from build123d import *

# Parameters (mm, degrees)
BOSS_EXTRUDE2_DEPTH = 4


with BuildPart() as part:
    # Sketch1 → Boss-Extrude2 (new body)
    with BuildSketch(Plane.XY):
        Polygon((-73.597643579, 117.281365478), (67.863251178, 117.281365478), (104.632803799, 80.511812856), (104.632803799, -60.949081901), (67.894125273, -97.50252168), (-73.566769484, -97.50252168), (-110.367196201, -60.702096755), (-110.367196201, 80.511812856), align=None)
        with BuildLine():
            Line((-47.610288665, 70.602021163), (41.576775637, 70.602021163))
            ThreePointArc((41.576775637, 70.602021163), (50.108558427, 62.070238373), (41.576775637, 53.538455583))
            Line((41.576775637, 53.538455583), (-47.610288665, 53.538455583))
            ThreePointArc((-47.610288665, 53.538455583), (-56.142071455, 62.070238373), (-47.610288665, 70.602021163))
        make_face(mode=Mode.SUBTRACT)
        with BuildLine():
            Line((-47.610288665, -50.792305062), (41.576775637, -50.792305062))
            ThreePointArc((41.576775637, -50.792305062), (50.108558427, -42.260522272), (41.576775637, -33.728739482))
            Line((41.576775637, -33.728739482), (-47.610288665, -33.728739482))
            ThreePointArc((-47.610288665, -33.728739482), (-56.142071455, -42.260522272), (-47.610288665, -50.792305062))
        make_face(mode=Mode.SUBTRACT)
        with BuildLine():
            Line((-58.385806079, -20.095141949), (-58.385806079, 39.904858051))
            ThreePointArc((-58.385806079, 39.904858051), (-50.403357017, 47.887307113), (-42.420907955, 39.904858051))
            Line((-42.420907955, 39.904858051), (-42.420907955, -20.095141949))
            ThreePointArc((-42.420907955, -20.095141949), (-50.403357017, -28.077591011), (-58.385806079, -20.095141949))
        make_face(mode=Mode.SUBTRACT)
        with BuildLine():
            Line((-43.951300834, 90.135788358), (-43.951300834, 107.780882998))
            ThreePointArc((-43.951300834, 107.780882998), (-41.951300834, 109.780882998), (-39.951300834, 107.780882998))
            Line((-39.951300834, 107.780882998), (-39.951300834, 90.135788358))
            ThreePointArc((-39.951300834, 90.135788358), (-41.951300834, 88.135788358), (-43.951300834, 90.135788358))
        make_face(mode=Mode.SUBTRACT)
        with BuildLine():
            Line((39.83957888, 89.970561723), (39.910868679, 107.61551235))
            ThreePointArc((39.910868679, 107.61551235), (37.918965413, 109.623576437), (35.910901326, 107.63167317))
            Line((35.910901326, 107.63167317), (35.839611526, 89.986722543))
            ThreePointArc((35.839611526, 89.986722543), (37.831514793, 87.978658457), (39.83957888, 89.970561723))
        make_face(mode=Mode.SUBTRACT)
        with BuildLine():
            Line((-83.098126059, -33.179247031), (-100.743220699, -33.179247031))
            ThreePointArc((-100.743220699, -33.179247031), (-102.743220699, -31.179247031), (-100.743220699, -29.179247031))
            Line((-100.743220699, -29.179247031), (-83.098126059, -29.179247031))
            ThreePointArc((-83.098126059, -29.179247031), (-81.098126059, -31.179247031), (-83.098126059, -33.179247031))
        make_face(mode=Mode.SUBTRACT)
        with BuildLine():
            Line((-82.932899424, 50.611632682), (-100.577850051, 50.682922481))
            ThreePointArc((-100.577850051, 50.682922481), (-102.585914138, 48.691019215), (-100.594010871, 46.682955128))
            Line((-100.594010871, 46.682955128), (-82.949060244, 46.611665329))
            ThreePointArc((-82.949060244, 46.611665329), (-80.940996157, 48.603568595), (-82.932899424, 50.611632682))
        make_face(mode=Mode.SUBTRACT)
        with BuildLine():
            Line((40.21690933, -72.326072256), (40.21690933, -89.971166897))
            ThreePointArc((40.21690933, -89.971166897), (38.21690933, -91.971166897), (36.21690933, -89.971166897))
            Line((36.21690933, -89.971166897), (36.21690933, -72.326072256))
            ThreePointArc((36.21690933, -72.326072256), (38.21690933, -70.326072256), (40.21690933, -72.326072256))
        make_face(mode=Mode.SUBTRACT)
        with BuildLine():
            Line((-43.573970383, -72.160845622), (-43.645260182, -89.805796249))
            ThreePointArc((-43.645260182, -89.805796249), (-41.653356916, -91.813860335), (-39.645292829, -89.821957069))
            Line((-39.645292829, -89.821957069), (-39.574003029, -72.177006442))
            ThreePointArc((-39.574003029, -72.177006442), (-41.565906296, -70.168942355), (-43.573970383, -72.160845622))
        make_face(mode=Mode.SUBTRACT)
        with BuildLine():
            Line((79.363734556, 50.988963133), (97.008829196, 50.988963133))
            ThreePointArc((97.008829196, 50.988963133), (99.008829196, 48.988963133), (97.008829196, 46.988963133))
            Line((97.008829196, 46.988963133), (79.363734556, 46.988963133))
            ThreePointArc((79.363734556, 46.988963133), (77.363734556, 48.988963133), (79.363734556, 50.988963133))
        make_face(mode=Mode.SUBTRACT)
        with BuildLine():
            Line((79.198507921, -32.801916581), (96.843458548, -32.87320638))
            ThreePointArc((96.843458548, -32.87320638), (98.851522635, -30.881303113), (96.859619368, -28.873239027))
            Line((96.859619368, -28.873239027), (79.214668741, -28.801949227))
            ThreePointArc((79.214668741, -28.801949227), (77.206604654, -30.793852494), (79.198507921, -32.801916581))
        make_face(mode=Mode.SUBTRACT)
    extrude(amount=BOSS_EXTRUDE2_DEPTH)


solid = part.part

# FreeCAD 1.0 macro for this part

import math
import FreeCAD as App
import Part
import Sketcher
Q = App.Units.Quantity

doc = App.newDocument("Part")
body = doc.addObject("PartDesign::Body", "Body")

sketch1 = doc.addObject("Sketcher::SketchObject", "Sketch")
body.addObject(sketch1)
sketch1.AttachmentSupport = (doc.XY_Plane, [""])
sketch1.MapMode = "FlatFace"
sketch1.addGeometry([
    Part.LineSegment(App.Vector(67.863251, 117.281365, 0), App.Vector(-73.597644, 117.281365, 0)),
    Part.LineSegment(App.Vector(-73.597644, 117.281365, 0), App.Vector(-110.367196, 80.511813, 0)),
    Part.LineSegment(App.Vector(-110.367196, 80.511813, 0), App.Vector(-110.367196, -60.702097, 0)),
    Part.LineSegment(App.Vector(-110.367196, -60.702097, 0), App.Vector(-73.566769, -97.502522, 0)),
    Part.LineSegment(App.Vector(-73.566769, -97.502522, 0), App.Vector(67.894125, -97.502522, 0)),
    Part.LineSegment(App.Vector(67.894125, -97.502522, 0), App.Vector(104.632804, -60.949082, 0)),
    Part.LineSegment(App.Vector(104.632804, -60.949082, 0), App.Vector(104.632804, 80.511813, 0)),
    Part.LineSegment(App.Vector(104.632804, 80.511813, 0), App.Vector(67.863251, 117.281365, 0)),
    Part.LineSegment(App.Vector(40.216909, -72.326072, 0), App.Vector(40.216909, -89.971167, 0)),
    Part.ArcOfCircle(Part.Circle(App.Vector(38.216909, -89.971167, 0), App.Vector(0, 0, 1), 2), math.radians(180), math.radians(360)),
    Part.LineSegment(App.Vector(36.216909, -89.971167, 0), App.Vector(36.216909, -72.326072, 0)),
    Part.ArcOfCircle(Part.Circle(App.Vector(38.216909, -72.326072, 0), App.Vector(0, 0, 1), 2), math.radians(0), math.radians(180)),
    Part.ArcOfCircle(Part.Circle(App.Vector(79.206588, -30.801933, 0), App.Vector(0, 0, 1), 2), math.radians(89.768513), math.radians(269.768513)),
    Part.LineSegment(App.Vector(79.214669, -28.801949, 0), App.Vector(96.859619, -28.873239, 0)),
    Part.ArcOfCircle(Part.Circle(App.Vector(96.851539, -30.873223, 0), App.Vector(0, 0, 1), 2), math.radians(-90.231487), math.radians(89.768513)),
    Part.LineSegment(App.Vector(96.843459, -32.873206, 0), App.Vector(79.198508, -32.801917, 0)),
    Part.ArcOfCircle(Part.Circle(App.Vector(-41.573987, -72.168926, 0), App.Vector(0, 0, 1), 2), math.radians(-0.231487), math.radians(179.768513)),
    Part.LineSegment(App.Vector(-39.574003, -72.177006, 0), App.Vector(-39.645293, -89.821957, 0)),
    Part.ArcOfCircle(Part.Circle(App.Vector(-41.645277, -89.813877, 0), App.Vector(0, 0, 1), 2), math.radians(179.768513), math.radians(359.768513)),
    Part.LineSegment(App.Vector(-43.64526, -89.805796, 0), App.Vector(-43.57397, -72.160846, 0)),
    Part.ArcOfCircle(Part.Circle(App.Vector(-47.610289, -42.260522, 0), App.Vector(0, 0, 1), 8.531783), math.radians(90), math.radians(270)),
    Part.LineSegment(App.Vector(-47.610289, -33.728739, 0), App.Vector(41.576776, -33.728739, 0)),
    Part.ArcOfCircle(Part.Circle(App.Vector(41.576776, -42.260522, 0), App.Vector(0, 0, 1), 8.531783), math.radians(-90), math.radians(90)),
    Part.LineSegment(App.Vector(41.576776, -50.792305, 0), App.Vector(-47.610289, -50.792305, 0)),
    Part.LineSegment(App.Vector(-83.098126, -33.179247, 0), App.Vector(-100.743221, -33.179247, 0)),
    Part.ArcOfCircle(Part.Circle(App.Vector(-100.743221, -31.179247, 0), App.Vector(0, 0, 1), 2), math.radians(90), math.radians(270)),
    Part.LineSegment(App.Vector(-100.743221, -29.179247, 0), App.Vector(-83.098126, -29.179247, 0)),
    Part.ArcOfCircle(Part.Circle(App.Vector(-83.098126, -31.179247, 0), App.Vector(0, 0, 1), 2), math.radians(-90), math.radians(90)),
    Part.LineSegment(App.Vector(79.363735, 50.988963, 0), App.Vector(97.008829, 50.988963, 0)),
    Part.ArcOfCircle(Part.Circle(App.Vector(97.008829, 48.988963, 0), App.Vector(0, 0, 1), 2), math.radians(-90), math.radians(90)),
    Part.LineSegment(App.Vector(97.008829, 46.988963, 0), App.Vector(79.363735, 46.988963, 0)),
    Part.ArcOfCircle(Part.Circle(App.Vector(79.363735, 48.988963, 0), App.Vector(0, 0, 1), 2), math.radians(90), math.radians(270)),
    Part.ArcOfCircle(Part.Circle(App.Vector(37.839595, 89.978642, 0), App.Vector(0, 0, 1), 2), math.radians(179.768513), math.radians(359.768513)),
    Part.LineSegment(App.Vector(35.839612, 89.986723, 0), App.Vector(35.910901, 107.631673, 0)),
    Part.ArcOfCircle(Part.Circle(App.Vector(37.910885, 107.623593, 0), App.Vector(0, 0, 1), 2), math.radians(-0.231487), math.radians(179.768513)),
    Part.LineSegment(App.Vector(39.910869, 107.615512, 0), App.Vector(39.839579, 89.970562, 0)),
    Part.LineSegment(App.Vector(-58.385806, -20.095142, 0), App.Vector(-58.385806, 39.904858, 0)),
    Part.ArcOfCircle(Part.Circle(App.Vector(-50.403357, 39.904858, 0), App.Vector(0, 0, 1), 7.982449), math.radians(0), math.radians(180)),
    Part.LineSegment(App.Vector(-42.420908, 39.904858, 0), App.Vector(-42.420908, -20.095142, 0)),
    Part.ArcOfCircle(Part.Circle(App.Vector(-50.403357, -20.095142, 0), App.Vector(0, 0, 1), 7.982449), math.radians(180), math.radians(360)),
    Part.ArcOfCircle(Part.Circle(App.Vector(-82.94098, 48.611649, 0), App.Vector(0, 0, 1), 2), math.radians(-90.231487), math.radians(89.768513)),
    Part.LineSegment(App.Vector(-82.94906, 46.611665, 0), App.Vector(-100.594011, 46.682955, 0)),
    Part.ArcOfCircle(Part.Circle(App.Vector(-100.58593, 48.682939, 0), App.Vector(0, 0, 1), 2), math.radians(89.768513), math.radians(269.768513)),
    Part.LineSegment(App.Vector(-100.57785, 50.682922, 0), App.Vector(-82.932899, 50.611633, 0)),
    Part.LineSegment(App.Vector(-47.610289, 70.602021, 0), App.Vector(41.576776, 70.602021, 0)),
    Part.ArcOfCircle(Part.Circle(App.Vector(41.576776, 62.070238, 0), App.Vector(0, 0, 1), 8.531783), math.radians(-90), math.radians(90)),
    Part.LineSegment(App.Vector(41.576776, 53.538456, 0), App.Vector(-47.610289, 53.538456, 0)),
    Part.ArcOfCircle(Part.Circle(App.Vector(-47.610289, 62.070238, 0), App.Vector(0, 0, 1), 8.531783), math.radians(90), math.radians(270)),
    Part.LineSegment(App.Vector(-43.951301, 90.135788, 0), App.Vector(-43.951301, 107.780883, 0)),
    Part.ArcOfCircle(Part.Circle(App.Vector(-41.951301, 107.780883, 0), App.Vector(0, 0, 1), 2), math.radians(0), math.radians(180)),
    Part.LineSegment(App.Vector(-39.951301, 107.780883, 0), App.Vector(-39.951301, 90.135788, 0)),
    Part.ArcOfCircle(Part.Circle(App.Vector(-41.951301, 90.135788, 0), App.Vector(0, 0, 1), 2), math.radians(180), math.radians(360)),
], False)
sketch1.addConstraint([
    Sketcher.Constraint("Coincident", 0, 2, 1, 1),
    Sketcher.Constraint("Coincident", 1, 2, 2, 1),
    Sketcher.Constraint("Coincident", 2, 2, 3, 1),
    Sketcher.Constraint("Coincident", 3, 2, 4, 1),
    Sketcher.Constraint("Coincident", 4, 2, 5, 1),
    Sketcher.Constraint("Coincident", 5, 2, 6, 1),
    Sketcher.Constraint("Coincident", 6, 2, 7, 1),
    Sketcher.Constraint("Coincident", 7, 2, 0, 1),
    Sketcher.Constraint("Tangent", 8, 2, 9, 2),
    Sketcher.Constraint("Tangent", 9, 1, 10, 1),
    Sketcher.Constraint("Tangent", 10, 2, 11, 2),
    Sketcher.Constraint("Tangent", 11, 1, 8, 1),
    Sketcher.Constraint("Tangent", 12, 1, 13, 1),
    Sketcher.Constraint("Tangent", 13, 2, 14, 2),
    Sketcher.Constraint("Tangent", 14, 1, 15, 1),
    Sketcher.Constraint("Tangent", 15, 2, 12, 2),
    Sketcher.Constraint("Tangent", 16, 1, 17, 1),
    Sketcher.Constraint("Tangent", 17, 2, 18, 2),
    Sketcher.Constraint("Tangent", 18, 1, 19, 1),
    Sketcher.Constraint("Tangent", 19, 2, 16, 2),
    Sketcher.Constraint("Tangent", 20, 1, 21, 1),
    Sketcher.Constraint("Tangent", 21, 2, 22, 2),
    Sketcher.Constraint("Tangent", 22, 1, 23, 1),
    Sketcher.Constraint("Tangent", 23, 2, 20, 2),
    Sketcher.Constraint("Tangent", 24, 2, 25, 2),
    Sketcher.Constraint("Tangent", 25, 1, 26, 1),
    Sketcher.Constraint("Tangent", 26, 2, 27, 2),
    Sketcher.Constraint("Tangent", 27, 1, 24, 1),
    Sketcher.Constraint("Tangent", 28, 2, 29, 2),
    Sketcher.Constraint("Tangent", 29, 1, 30, 1),
    Sketcher.Constraint("Tangent", 30, 2, 31, 2),
    Sketcher.Constraint("Tangent", 31, 1, 28, 1),
    Sketcher.Constraint("Tangent", 32, 1, 33, 1),
    Sketcher.Constraint("Tangent", 33, 2, 34, 2),
    Sketcher.Constraint("Tangent", 34, 1, 35, 1),
    Sketcher.Constraint("Tangent", 35, 2, 32, 2),
    Sketcher.Constraint("Tangent", 36, 2, 37, 2),
    Sketcher.Constraint("Tangent", 37, 1, 38, 1),
    Sketcher.Constraint("Tangent", 38, 2, 39, 2),
    Sketcher.Constraint("Tangent", 39, 1, 36, 1),
    Sketcher.Constraint("Tangent", 40, 1, 41, 1),
    Sketcher.Constraint("Tangent", 41, 2, 42, 2),
    Sketcher.Constraint("Tangent", 42, 1, 43, 1),
    Sketcher.Constraint("Tangent", 43, 2, 40, 2),
    Sketcher.Constraint("Tangent", 44, 2, 45, 2),
    Sketcher.Constraint("Tangent", 45, 1, 46, 1),
    Sketcher.Constraint("Tangent", 46, 2, 47, 2),
    Sketcher.Constraint("Tangent", 47, 1, 44, 1),
    Sketcher.Constraint("Tangent", 48, 2, 49, 2),
    Sketcher.Constraint("Tangent", 49, 1, 50, 1),
    Sketcher.Constraint("Tangent", 50, 2, 51, 2),
    Sketcher.Constraint("Tangent", 51, 1, 48, 1),
    Sketcher.Constraint("Horizontal", 0),
    Sketcher.Constraint("Vertical", 2),
    Sketcher.Constraint("Horizontal", 4),
    Sketcher.Constraint("Vertical", 6),
    Sketcher.Constraint("Vertical", 8),
    Sketcher.Constraint("Vertical", 10),
    Sketcher.Constraint("Horizontal", 21),
    Sketcher.Constraint("Horizontal", 23),
    Sketcher.Constraint("Horizontal", 24),
    Sketcher.Constraint("Horizontal", 26),
    Sketcher.Constraint("Horizontal", 28),
    Sketcher.Constraint("Horizontal", 30),
    Sketcher.Constraint("Vertical", 36),
    Sketcher.Constraint("Vertical", 38),
    Sketcher.Constraint("Horizontal", 44),
    Sketcher.Constraint("Horizontal", 46),
    Sketcher.Constraint("Vertical", 48),
    Sketcher.Constraint("Vertical", 50),
    Sketcher.Constraint("Equal", 11, 12),
    Sketcher.Constraint("Equal", 12, 14),
    Sketcher.Constraint("Equal", 14, 16),
    Sketcher.Constraint("Equal", 16, 18),
    Sketcher.Constraint("Equal", 18, 25),
    Sketcher.Constraint("Equal", 27, 29),
    Sketcher.Constraint("Equal", 31, 32),
    Sketcher.Constraint("Equal", 32, 34),
    Sketcher.Constraint("Equal", 34, 40),
    Sketcher.Constraint("Equal", 40, 42),
    Sketcher.Constraint("Equal", 22, 45),
    Sketcher.Constraint("Equal", 42, 49),
    Sketcher.Constraint("Perpendicular", 1, 3),
    Sketcher.Constraint("Parallel", 3, 7),
    Sketcher.Constraint("Perpendicular", 15, 17),
    Sketcher.Constraint("Parallel", 19, 33),
    Sketcher.Constraint("Perpendicular", 35, 41),
    Sketcher.Constraint("Horizontal", 1, 2, 6, 2),
    Sketcher.Constraint("Vertical", 22, 3, 45, 3),
    Sketcher.Constraint("Vertical", 20, 3, 47, 3),
    Sketcher.Constraint("Equal", 0, 4),
    Sketcher.Constraint("Equal", 26, 28),
    Sketcher.Constraint("Equal", 4, 6),
    Sketcher.Constraint("Equal", 30, 8),
    Sketcher.Constraint("Equal", 10, 48),
    Sketcher.Constraint("Equal", 1, 7),
    Sketcher.Constraint("Equal", 15, 17),
    Sketcher.Constraint("Equal", 19, 33),
    Sketcher.Constraint("Equal", 35, 41),
    Sketcher.Constraint("Radius", 9, Q("2 mm")),
    Sketcher.Constraint("DistanceY", 36, 1, 36, 2, Q("60 mm")),
    Sketcher.Constraint("Distance", 1, Q("52 mm")),
    Sketcher.Constraint("Radius", 37, Q("7.982449 mm")),
    Sketcher.Constraint("Radius", 20, Q("8.531783 mm")),
    Sketcher.Constraint("DistanceY", 2, 2, 2, 1, Q("141.21391 mm")),
    Sketcher.Constraint("DistanceX", 49, 3, -1, 1, Q("41.951301 mm")),
    Sketcher.Constraint("DistanceX", -1, 1, 33, 2, Q("35.910901 mm")),
    Sketcher.Constraint("DistanceX", 43, 2, -1, 1, Q("82.932899 mm")),
    Sketcher.Constraint("Distance", 3, Q("52.043661 mm")),
    Sketcher.Constraint("Distance", 5, Q("51.825519 mm")),
    Sketcher.Constraint("DistanceX", 21, 1, 21, 2, Q("89.187064 mm")),
    Sketcher.Constraint("DistanceX", 24, 2, 24, 1, Q("17.645095 mm")),
    Sketcher.Constraint("DistanceX", -1, 1, 9, 3, Q("38.216909 mm")),
    Sketcher.Constraint("DistanceX", -1, 1, 12, 3, Q("79.206588 mm")),
    Sketcher.Constraint("DistanceX", -1, 1, 14, 3, Q("96.851539 mm")),
    Sketcher.Constraint("DistanceX", 20, 3, -1, 1, Q("47.610289 mm")),
    Sketcher.Constraint("DistanceX", 25, 3, -1, 1, Q("100.743221 mm")),
    Sketcher.Constraint("DistanceX", -1, 1, 29, 3, Q("97.008829 mm")),
    Sketcher.Constraint("DistanceY", -1, 1, 37, 3, Q("39.904858 mm")),
    Sketcher.Constraint("DistanceX", 40, 3, -1, 1, Q("82.94098 mm")),
    Sketcher.Constraint("DistanceY", -1, 1, 40, 3, Q("48.611649 mm")),
    Sketcher.Constraint("DistanceY", -1, 1, 45, 3, Q("62.070238 mm")),
    Sketcher.Constraint("DistanceY", -1, 1, 51, 3, Q("90.135788 mm")),
    Sketcher.Constraint("DistanceX", 3, 2, -1, 1, Q("73.566769 mm")),
    Sketcher.Constraint("DistanceY", 3, 2, -1, 1, Q("97.502522 mm")),
    Sketcher.Constraint("DistanceY", 12, 1, -1, 1, Q("28.801949 mm")),
    Sketcher.Constraint("DistanceX", 18, 1, -1, 1, Q("43.64526 mm")),
    Sketcher.Constraint("DistanceY", 20, 1, -1, 1, Q("33.728739 mm")),
    Sketcher.Constraint("DistanceY", -1, 1, 35, 2, Q("89.970562 mm")),
    Sketcher.Constraint("DistanceY", 9, 3, -1, 1, Q("89.971167 mm")),
    Sketcher.Constraint("DistanceY", 16, 3, -1, 1, Q("72.168926 mm")),
    Sketcher.Constraint("DistanceY", 25, 3, -1, 1, Q("31.179247 mm")),
    Sketcher.Constraint("DistanceY", -1, 1, 29, 3, Q("48.988963 mm")),
    Sketcher.Constraint("DistanceX", 37, 3, -1, 1, Q("50.403357 mm")),
])
pad1 = doc.addObject("PartDesign::Pad", "Pad")
body.addObject(pad1)
pad1.Profile = sketch1
pad1.Length = 4

doc.recompute()
